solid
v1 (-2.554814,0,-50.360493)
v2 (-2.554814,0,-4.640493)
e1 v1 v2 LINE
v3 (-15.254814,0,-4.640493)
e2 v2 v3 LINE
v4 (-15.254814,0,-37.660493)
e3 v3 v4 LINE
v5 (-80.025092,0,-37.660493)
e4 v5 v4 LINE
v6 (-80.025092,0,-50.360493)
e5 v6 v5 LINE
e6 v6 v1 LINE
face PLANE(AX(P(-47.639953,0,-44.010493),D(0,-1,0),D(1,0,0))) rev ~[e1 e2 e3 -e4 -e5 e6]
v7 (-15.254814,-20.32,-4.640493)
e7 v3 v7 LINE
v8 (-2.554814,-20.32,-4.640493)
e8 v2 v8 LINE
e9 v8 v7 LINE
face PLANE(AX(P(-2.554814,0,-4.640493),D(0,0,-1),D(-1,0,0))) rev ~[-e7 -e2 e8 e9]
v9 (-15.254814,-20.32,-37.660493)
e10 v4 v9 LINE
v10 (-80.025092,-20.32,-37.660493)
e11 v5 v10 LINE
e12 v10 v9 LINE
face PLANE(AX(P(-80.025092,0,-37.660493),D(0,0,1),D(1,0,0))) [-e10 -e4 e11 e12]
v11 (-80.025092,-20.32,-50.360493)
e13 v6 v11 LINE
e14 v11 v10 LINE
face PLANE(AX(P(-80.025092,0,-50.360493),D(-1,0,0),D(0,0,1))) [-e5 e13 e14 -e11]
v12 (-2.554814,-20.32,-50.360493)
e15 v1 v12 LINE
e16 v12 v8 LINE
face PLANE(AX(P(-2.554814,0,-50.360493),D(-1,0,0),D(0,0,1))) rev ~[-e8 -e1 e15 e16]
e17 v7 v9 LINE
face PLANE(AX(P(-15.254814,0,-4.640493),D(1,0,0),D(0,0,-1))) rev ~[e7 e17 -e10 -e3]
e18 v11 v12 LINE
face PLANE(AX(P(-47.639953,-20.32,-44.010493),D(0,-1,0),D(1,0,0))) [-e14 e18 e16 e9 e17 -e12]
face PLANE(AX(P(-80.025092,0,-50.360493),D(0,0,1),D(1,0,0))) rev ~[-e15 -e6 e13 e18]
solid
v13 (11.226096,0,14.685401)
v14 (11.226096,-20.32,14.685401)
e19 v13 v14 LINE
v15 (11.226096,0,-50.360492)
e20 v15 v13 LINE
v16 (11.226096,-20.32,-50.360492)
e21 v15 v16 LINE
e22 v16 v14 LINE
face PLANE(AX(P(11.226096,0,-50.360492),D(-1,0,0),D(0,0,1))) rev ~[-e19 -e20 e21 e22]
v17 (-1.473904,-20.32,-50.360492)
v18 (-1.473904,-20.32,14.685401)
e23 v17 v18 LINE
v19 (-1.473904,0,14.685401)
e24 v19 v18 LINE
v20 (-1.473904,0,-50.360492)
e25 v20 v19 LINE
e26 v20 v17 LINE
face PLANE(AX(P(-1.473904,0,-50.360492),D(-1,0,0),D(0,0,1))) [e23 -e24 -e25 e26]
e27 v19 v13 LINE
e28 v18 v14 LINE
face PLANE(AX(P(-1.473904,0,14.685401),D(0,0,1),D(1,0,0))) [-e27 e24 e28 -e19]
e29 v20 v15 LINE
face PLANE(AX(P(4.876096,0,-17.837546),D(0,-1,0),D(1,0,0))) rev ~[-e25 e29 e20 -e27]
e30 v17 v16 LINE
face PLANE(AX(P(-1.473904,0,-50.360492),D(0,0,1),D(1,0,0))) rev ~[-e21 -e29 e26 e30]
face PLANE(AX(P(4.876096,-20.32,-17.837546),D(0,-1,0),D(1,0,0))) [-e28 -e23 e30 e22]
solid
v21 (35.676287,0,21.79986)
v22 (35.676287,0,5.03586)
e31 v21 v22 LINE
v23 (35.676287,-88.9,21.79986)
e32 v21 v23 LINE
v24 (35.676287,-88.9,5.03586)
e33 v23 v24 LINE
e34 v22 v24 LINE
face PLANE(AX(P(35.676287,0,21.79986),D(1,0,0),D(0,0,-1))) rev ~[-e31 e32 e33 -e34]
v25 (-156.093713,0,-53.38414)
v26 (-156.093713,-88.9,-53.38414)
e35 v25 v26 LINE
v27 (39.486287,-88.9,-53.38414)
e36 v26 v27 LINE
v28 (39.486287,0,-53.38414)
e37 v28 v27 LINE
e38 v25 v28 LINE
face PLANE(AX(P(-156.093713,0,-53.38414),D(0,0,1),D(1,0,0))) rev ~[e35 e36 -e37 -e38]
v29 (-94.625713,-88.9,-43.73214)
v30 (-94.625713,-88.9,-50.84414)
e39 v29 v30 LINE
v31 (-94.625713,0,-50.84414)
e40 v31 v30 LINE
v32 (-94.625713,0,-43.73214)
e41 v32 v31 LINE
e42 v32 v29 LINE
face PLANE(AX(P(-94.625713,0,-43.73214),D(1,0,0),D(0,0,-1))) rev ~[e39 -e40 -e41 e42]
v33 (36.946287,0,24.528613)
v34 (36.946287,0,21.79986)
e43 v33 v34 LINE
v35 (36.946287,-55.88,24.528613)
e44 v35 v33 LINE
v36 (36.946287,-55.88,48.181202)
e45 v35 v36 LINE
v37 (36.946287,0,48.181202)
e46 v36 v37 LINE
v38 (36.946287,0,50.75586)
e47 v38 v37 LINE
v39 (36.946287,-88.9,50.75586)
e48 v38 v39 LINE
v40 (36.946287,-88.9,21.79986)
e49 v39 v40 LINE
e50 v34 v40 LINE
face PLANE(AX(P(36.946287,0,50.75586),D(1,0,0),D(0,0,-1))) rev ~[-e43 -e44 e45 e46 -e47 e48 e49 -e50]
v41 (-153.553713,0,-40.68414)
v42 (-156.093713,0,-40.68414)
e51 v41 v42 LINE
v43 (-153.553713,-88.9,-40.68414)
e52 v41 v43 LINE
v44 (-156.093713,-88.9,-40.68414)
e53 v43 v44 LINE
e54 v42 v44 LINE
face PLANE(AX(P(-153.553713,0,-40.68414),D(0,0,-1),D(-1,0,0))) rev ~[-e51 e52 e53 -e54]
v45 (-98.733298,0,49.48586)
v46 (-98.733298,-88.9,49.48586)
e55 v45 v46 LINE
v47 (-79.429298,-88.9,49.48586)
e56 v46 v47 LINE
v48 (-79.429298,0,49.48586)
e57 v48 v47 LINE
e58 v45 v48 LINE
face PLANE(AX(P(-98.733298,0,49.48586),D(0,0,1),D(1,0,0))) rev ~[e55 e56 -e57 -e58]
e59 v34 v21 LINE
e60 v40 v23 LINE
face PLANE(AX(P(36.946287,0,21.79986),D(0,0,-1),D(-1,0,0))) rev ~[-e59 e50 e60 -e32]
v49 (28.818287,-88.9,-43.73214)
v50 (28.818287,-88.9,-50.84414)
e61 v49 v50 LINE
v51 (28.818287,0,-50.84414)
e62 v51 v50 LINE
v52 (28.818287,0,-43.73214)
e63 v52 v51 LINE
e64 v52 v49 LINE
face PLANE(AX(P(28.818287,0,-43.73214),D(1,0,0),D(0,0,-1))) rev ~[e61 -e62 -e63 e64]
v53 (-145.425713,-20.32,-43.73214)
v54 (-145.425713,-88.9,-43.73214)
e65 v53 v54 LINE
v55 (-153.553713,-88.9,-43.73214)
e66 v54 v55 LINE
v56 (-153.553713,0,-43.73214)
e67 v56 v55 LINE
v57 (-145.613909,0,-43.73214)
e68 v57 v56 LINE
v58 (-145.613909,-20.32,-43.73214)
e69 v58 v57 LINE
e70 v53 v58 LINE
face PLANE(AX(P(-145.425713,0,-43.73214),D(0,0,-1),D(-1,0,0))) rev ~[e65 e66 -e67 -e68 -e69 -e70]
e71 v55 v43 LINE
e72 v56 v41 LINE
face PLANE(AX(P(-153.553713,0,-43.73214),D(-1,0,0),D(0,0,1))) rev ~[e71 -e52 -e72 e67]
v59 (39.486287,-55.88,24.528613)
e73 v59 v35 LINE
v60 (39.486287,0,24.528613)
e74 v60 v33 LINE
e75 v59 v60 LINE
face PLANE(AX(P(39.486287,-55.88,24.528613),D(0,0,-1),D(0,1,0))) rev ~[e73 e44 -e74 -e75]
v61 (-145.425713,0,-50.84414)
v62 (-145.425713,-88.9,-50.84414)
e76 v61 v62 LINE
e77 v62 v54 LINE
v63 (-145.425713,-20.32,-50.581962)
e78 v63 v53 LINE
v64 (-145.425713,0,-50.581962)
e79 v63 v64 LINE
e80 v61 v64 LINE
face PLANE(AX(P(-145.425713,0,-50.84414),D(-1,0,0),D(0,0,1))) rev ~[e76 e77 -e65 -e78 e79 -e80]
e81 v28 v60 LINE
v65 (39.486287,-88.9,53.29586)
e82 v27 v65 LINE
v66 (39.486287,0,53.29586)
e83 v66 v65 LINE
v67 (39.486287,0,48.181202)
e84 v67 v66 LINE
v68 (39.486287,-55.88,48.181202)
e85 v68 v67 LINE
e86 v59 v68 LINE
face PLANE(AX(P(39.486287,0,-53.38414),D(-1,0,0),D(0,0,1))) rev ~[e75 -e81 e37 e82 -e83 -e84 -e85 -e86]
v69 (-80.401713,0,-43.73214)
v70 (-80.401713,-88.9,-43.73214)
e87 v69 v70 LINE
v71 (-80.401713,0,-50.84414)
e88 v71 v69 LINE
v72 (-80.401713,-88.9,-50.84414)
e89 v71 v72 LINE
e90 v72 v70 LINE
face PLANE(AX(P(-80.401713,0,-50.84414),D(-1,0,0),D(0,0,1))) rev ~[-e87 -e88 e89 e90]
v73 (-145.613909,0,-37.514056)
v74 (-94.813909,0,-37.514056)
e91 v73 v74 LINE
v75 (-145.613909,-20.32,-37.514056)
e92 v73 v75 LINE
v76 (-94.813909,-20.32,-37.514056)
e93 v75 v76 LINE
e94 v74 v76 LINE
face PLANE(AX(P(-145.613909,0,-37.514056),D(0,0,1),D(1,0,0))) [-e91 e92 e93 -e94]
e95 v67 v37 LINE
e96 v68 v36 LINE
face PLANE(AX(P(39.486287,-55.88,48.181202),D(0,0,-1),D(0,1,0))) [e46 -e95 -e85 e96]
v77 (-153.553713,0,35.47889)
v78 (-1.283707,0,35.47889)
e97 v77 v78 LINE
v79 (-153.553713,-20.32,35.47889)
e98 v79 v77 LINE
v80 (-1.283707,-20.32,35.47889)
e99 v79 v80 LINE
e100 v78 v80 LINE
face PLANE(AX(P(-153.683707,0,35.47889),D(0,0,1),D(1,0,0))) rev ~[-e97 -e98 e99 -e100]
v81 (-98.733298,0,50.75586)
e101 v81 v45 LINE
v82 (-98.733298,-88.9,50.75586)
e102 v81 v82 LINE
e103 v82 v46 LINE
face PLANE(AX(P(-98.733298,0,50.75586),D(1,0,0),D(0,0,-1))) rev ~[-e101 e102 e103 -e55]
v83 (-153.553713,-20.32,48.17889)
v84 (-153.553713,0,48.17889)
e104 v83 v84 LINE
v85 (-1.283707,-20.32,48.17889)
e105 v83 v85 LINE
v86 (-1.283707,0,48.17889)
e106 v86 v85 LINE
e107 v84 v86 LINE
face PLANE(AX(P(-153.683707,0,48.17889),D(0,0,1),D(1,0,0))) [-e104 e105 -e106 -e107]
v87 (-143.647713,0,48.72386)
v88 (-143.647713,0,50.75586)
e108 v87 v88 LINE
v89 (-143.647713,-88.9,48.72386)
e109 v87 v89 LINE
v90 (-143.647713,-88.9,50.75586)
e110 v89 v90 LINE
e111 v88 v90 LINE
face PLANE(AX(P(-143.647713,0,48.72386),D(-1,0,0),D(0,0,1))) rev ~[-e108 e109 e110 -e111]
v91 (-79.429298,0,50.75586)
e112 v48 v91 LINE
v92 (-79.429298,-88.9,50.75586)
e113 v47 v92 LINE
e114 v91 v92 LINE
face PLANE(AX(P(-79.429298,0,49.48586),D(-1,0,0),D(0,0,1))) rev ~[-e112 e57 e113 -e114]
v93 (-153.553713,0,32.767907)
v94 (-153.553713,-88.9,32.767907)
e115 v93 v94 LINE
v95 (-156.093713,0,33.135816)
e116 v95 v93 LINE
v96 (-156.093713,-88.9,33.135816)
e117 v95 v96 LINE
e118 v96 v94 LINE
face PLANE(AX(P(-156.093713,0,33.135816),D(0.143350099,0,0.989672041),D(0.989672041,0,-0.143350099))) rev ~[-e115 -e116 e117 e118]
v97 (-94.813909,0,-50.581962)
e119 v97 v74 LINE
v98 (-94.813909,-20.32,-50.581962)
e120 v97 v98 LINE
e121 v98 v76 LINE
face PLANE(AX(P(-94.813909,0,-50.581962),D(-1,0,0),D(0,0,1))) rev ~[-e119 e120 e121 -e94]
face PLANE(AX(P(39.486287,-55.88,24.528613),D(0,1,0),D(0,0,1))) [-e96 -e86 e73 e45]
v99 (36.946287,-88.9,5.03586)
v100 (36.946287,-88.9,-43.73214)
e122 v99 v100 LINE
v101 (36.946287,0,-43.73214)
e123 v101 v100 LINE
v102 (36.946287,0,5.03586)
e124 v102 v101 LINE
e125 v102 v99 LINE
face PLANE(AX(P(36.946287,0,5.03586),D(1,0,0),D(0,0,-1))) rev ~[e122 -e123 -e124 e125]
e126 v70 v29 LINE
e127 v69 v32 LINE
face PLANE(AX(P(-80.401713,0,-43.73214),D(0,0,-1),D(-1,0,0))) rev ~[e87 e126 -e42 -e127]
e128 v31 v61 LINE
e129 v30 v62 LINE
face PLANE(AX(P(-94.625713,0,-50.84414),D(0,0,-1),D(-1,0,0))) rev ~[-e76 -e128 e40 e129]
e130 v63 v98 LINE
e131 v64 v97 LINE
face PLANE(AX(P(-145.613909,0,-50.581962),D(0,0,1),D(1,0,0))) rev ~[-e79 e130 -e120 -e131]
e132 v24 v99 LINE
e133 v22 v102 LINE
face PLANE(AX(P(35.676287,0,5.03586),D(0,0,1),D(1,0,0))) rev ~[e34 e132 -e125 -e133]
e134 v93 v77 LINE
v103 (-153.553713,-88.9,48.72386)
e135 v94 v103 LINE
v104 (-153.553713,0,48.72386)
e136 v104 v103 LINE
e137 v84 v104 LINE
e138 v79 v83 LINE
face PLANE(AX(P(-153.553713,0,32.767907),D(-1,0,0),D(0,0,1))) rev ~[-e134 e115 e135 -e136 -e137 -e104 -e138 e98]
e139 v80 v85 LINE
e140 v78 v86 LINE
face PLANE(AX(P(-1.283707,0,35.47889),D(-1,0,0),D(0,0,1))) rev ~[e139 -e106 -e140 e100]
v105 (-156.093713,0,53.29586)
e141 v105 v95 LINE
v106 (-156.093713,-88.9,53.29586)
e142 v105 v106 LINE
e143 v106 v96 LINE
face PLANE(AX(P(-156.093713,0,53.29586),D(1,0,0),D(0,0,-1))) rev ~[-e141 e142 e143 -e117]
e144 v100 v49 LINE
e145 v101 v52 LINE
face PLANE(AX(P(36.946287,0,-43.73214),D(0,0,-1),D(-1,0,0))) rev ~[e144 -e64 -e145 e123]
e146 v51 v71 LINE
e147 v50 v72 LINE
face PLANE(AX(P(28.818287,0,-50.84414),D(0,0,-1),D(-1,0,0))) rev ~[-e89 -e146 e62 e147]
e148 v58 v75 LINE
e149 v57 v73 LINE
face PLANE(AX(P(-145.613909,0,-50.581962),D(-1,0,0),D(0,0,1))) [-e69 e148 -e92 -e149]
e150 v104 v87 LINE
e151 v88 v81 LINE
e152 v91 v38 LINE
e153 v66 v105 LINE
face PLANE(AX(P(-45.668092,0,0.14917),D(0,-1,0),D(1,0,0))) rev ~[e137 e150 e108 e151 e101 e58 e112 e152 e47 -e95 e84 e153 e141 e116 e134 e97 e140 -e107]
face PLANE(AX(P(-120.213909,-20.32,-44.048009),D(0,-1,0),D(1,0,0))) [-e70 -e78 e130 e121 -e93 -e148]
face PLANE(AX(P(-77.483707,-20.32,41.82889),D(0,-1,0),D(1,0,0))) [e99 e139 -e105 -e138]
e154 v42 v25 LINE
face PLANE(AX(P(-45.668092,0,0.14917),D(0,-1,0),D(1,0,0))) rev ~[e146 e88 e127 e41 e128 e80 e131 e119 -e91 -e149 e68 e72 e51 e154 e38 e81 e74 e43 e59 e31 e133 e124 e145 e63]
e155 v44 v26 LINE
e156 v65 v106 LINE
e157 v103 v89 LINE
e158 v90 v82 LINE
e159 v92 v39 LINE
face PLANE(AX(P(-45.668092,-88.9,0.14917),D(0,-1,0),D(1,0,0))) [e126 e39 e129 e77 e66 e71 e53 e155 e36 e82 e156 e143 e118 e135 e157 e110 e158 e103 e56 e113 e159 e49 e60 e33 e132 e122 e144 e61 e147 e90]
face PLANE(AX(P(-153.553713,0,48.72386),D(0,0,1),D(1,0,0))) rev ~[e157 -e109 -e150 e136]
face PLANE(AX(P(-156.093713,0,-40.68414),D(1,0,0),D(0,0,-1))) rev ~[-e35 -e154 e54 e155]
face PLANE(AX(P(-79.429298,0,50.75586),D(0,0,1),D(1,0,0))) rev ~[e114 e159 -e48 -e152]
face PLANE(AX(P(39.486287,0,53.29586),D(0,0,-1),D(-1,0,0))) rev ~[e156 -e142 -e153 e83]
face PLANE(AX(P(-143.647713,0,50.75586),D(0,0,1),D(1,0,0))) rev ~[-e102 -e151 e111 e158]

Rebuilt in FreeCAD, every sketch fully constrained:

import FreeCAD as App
import Part
import Sketcher

V = App.Vector
Q = App.Units.Quantity


def add_polygon(sketch, points):
    """Adds a closed chain of lines whose ends are joined by coincident constraints."""
    first, n = sketch.GeometryCount, len(points)
    for a, b in zip(points, points[1:] + points[:1]):
        sketch.addGeometry(Part.LineSegment(App.Vector(*a, 0), App.Vector(*b, 0)), False)
    for i in range(n):
        sketch.addConstraint(Sketcher.Constraint("Coincident", first + i, 2, first + (i + 1) % n, 1))

doc = App.newDocument("Part")
body = doc.addObject("PartDesign::Body", "Body")
body.AllowCompound = True

sketch1 = body.newObject("Sketcher::SketchObject", "Sketch")
sketch1.AttachmentSupport = (doc.getObject("XZ_Plane"), [""])
sketch1.MapMode = "FlatFace"
add_polygon(sketch1, [(-143.6, 48.7), (-143.6, 50.8), (-98.7, 50.8), (-98.7, 49.5), (-79.4, 49.5), (-79.4, 50.8), (36.9, 50.8), (36.9, 21.8), (35.7, 21.8), (35.7, 5), (36.9, 5), (36.9, -43.7), (28.8, -43.7), (28.8, -50.8), (-80.4, -50.8), (-80.4, -43.7), (-94.6, -43.7), (-94.6, -50.8), (-145.4, -50.8), (-145.4, -43.7), (-153.6, -43.7), (-153.6, -40.7), (-156.1, -40.7), (-156.1, -53.4), (39.5, -53.4), (39.5, 53.3), (-156.1, 53.3), (-156.1, 33.1), (-153.6, 32.8), (-153.6, 48.7)])
sketch1.addConstraint([
    Sketcher.Constraint("Vertical", 0),
    Sketcher.Constraint("Horizontal", 1),
    Sketcher.Constraint("Vertical", 2),
    Sketcher.Constraint("Horizontal", 3),
    Sketcher.Constraint("Vertical", 4),
    Sketcher.Constraint("Horizontal", 5),
    Sketcher.Constraint("Vertical", 6),
    Sketcher.Constraint("Horizontal", 7),
    Sketcher.Constraint("Vertical", 8),
    Sketcher.Constraint("Horizontal", 9),
    Sketcher.Constraint("Vertical", 10),
    Sketcher.Constraint("Horizontal", 11),
    Sketcher.Constraint("Vertical", 12),
    Sketcher.Constraint("Horizontal", 13),
    Sketcher.Constraint("Vertical", 14),
    Sketcher.Constraint("Horizontal", 15),
    Sketcher.Constraint("Vertical", 16),
    Sketcher.Constraint("Horizontal", 17),
    Sketcher.Constraint("Vertical", 18),
    Sketcher.Constraint("Horizontal", 19),
    Sketcher.Constraint("Vertical", 20),
    Sketcher.Constraint("Horizontal", 21),
    Sketcher.Constraint("Vertical", 22),
    Sketcher.Constraint("Horizontal", 23),
    Sketcher.Constraint("Vertical", 24),
    Sketcher.Constraint("Horizontal", 25),
    Sketcher.Constraint("Vertical", 26),
    Sketcher.Constraint("Vertical", 28),
    Sketcher.Constraint("Horizontal", 29),
    Sketcher.Constraint("Horizontal", 1, 2, 4, 2),
    Sketcher.Constraint("Horizontal", 11, 2, 14, 2),
    Sketcher.Constraint("Horizontal", 13, 2, 16, 2),
    Sketcher.Constraint("Horizontal", 15, 2, 18, 2),
    Sketcher.Constraint("Vertical", 6, 2, 9, 2),
    Sketcher.Constraint("Vertical", 22, 2, 25, 2),
    Sketcher.Constraint("Vertical", 20, 2, 27, 2),
    Sketcher.Constraint("Equal", 11, 19),
    Sketcher.Constraint("Equal", 9, 2),
    Sketcher.Constraint("DistanceX", 17, 2, 17, 1, Q("2 in")),
    Sketcher.Constraint("DistanceX", 13, 2, 13, 1, Q("4.3 in")),
    Sketcher.Constraint("DistanceX", 21, 2, 21, 1, Q("0.1 in")),
    Sketcher.Constraint("DistanceX", 23, 1, 23, 2, Q("7.7 in")),
    Sketcher.Constraint("DistanceY", 22, 2, 22, 1, Q("0.5 in")),
    Sketcher.Constraint("DistanceY", 24, 1, 24, 2, Q("4.2 in")),
    Sketcher.Constraint("DistanceY", 13, 2, 4, 2, Q("4 in")),
    Sketcher.Constraint("DistanceX", 3, 1, 3, 2, Q("0.76 in")),
    Sketcher.Constraint("DistanceX", 7, 2, 7, 1, Q("0.05 in")),
    Sketcher.Constraint("DistanceX", 11, 2, 11, 1, Q("0.32 in")),
    Sketcher.Constraint("DistanceX", 15, 2, 15, 1, Q("0.56 in")),
    Sketcher.Constraint("DistanceX", 29, 1, 29, 2, Q("0.39 in")),
    Sketcher.Constraint("DistanceY", 0, 1, 0, 2, Q("0.08 in")),
    Sketcher.Constraint("DistanceY", 6, 2, 6, 1, Q("1.14 in")),
    Sketcher.Constraint("DistanceY", 8, 2, 8, 1, Q("0.66 in")),
    Sketcher.Constraint("DistanceY", 10, 2, 10, 1, Q("1.92 in")),
    Sketcher.Constraint("DistanceY", 20, 1, 20, 2, Q("0.12 in")),
    Sketcher.Constraint("DistanceX", 1, 2, -1, 1, Q("98.733298 mm")),
    Sketcher.Constraint("DistanceX", 1, 1, 1, 2, Q("44.914415 mm")),
    Sketcher.Constraint("DistanceY", 26, 2, 26, 1, Q("20.160044 mm")),
    Sketcher.Constraint("DistanceY", 28, 1, 28, 2, Q("15.955953 mm")),
    Sketcher.Constraint("DistanceY", -1, 1, 0, 2, Q("50.75586 mm")),
])
pad1 = body.newObject("PartDesign::Pad", "Pad")
pad1.Profile = sketch1
pad1.Length = Q("3.5 in")

sketch2 = body.newObject("Sketcher::SketchObject", "Sketch001")
sketch2.AttachmentSupport = (doc.getObject("YZ_Plane"), [""])
sketch2.MapMode = "FlatFace"
sketch2.AttachmentOffset = App.Placement(V(0, 0, 39.486287), App.Rotation())
add_polygon(sketch2, [(-56, 48), (-56, 25), (0, 25), (0, 48)])
sketch2.addConstraint([
    Sketcher.Constraint("Vertical", 0),
    Sketcher.Constraint("Horizontal", 1),
    Sketcher.Constraint("Vertical", 2),
    Sketcher.Constraint("Horizontal", 3),
    Sketcher.Constraint("PointOnObject", 1, 2, -2),
    Sketcher.Constraint("DistanceX", 1, 1, 1, 2, Q("2.2 in")),
    Sketcher.Constraint("DistanceY", 0, 2, 0, 1, Q("23.652589 mm")),
    Sketcher.Constraint("DistanceY", -1, 1, 2, 2, Q("48.181202 mm")),
])
pocket1 = body.newObject("PartDesign::Pocket", "Pocket")
pocket1.Profile = sketch2
pocket1.Length = Q("1 in")

sketch3 = body.newObject("Sketcher::SketchObject", "Sketch002")
sketch3.AttachmentSupport = (doc.getObject("XZ_Plane"), [""])
sketch3.MapMode = "FlatFace"
add_polygon(sketch3, [(-154, 48), (-154, 35), (-1, 35), (-1, 48)])
add_polygon(sketch3, [(-146, -38), (-146, -51), (-95, -51), (-95, -38)])
add_polygon(sketch3, [(-80, -38), (-80, -50), (-3, -50), (-3, -5), (-15, -5), (-15, -38)])
add_polygon(sketch3, [(-1, 15), (-1, -50), (11, -50), (11, 15)])
sketch3.addConstraint([
    Sketcher.Constraint("Vertical", 0),
    Sketcher.Constraint("Horizontal", 1),
    Sketcher.Constraint("Vertical", 2),
    Sketcher.Constraint("Horizontal", 3),
    Sketcher.Constraint("Vertical", 4),
    Sketcher.Constraint("Horizontal", 5),
    Sketcher.Constraint("Vertical", 6),
    Sketcher.Constraint("Horizontal", 7),
    Sketcher.Constraint("Vertical", 8),
    Sketcher.Constraint("Horizontal", 9),
    Sketcher.Constraint("Vertical", 10),
    Sketcher.Constraint("Horizontal", 11),
    Sketcher.Constraint("Vertical", 12),
    Sketcher.Constraint("Horizontal", 13),
    Sketcher.Constraint("Vertical", 14),
    Sketcher.Constraint("Horizontal", 15),
    Sketcher.Constraint("Vertical", 16),
    Sketcher.Constraint("Horizontal", 17),
    Sketcher.Constraint("Horizontal", 9, 2, 14, 2),
    Sketcher.Constraint("Equal", 11, 15),
    Sketcher.Constraint("Equal", 17, 0),
    Sketcher.Constraint("Equal", 2, 8),
    Sketcher.Constraint("DistanceX", 1, 1, 1, 2, Q("6 in")),
    Sketcher.Constraint("DistanceX", 5, 1, 5, 2, Q("2 in")),
    Sketcher.Constraint("DistanceX", 11, 2, 11, 1, Q("0.5 in")),
    Sketcher.Constraint("DistanceY", 10, 1, 10, 2, Q("1.8 in")),
    Sketcher.Constraint("DistanceX", 9, 1, 9, 2, Q("77.470278 mm")),
    Sketcher.Constraint("DistanceY", -1, 1, 16, 2, Q("14.685401 mm")),
    Sketcher.Constraint("DistanceX", 0, 2, 5, 2, Q("58.869798 mm")),
    Sketcher.Constraint("DistanceY", 4, 2, 4, 1, Q("13.067906 mm")),
    Sketcher.Constraint("DistanceY", 14, 2, 14, 1, Q("65.045893 mm")),
    Sketcher.Constraint("DistanceY", -1, 1, 0, 2, Q("35.47889 mm")),
    Sketcher.Constraint("DistanceX", 4, 2, -1, 1, Q("145.613909 mm")),
    Sketcher.Constraint("DistanceY", 4, 2, -1, 1, Q("50.581962 mm")),
    Sketcher.Constraint("DistanceX", 8, 2, -1, 1, Q("80.025092 mm")),
    Sketcher.Constraint("DistanceX", 9, 2, 14, 2, Q("1.08091 mm")),
])
pad2 = body.newObject("PartDesign::Pad", "Pad001")
pad2.Profile = sketch3
pad2.Length = Q("0.8 in")

doc.recompute()
